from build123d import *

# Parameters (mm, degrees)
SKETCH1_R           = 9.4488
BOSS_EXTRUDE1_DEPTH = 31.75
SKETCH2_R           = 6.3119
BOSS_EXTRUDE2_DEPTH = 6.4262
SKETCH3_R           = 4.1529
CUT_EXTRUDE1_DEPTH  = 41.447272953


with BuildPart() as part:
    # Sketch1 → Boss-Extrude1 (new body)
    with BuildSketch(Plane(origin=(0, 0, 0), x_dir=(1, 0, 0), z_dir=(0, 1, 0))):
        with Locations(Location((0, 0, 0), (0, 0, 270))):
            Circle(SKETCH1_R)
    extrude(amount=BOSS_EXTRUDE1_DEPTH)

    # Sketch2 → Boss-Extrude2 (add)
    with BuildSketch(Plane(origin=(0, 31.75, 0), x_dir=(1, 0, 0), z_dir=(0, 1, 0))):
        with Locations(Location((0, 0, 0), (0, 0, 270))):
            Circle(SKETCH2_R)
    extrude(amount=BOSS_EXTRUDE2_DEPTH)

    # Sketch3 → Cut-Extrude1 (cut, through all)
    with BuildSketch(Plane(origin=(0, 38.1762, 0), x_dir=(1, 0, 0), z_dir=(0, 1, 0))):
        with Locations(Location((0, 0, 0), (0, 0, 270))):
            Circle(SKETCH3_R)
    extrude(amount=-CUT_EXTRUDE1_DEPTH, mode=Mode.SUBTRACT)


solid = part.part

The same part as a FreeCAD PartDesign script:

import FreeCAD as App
import Part
import Sketcher

V = App.Vector
Q = App.Units.Quantity

doc = App.newDocument("Part")
params = doc.addObject("Spreadsheet::Sheet", "Params")
for row, (alias, value) in enumerate([
    ("sketch1_diameter", "0.744 in"),
    ("pad1_length", "1.25 in"),
    ("sketch2_diameter", "0.497 in"),
    ("pad2_length", "0.253 in"),
    ("sketch3_diameter", "0.327 in"),
], start=1):
    params.set(f"A{row}", alias)
    params.set(f"B{row}", "=" + value)
    params.setAlias(f"B{row}", alias)

body = doc.addObject("PartDesign::Body", "Body")

# Sketch on XZ plane
sketch1 = body.newObject("Sketcher::SketchObject", "Sketch")
sketch1.AttachmentSupport = (doc.getObject("XZ_Plane"), [""])
sketch1.MapMode = "FlatFace"
sketch1.addGeometry(Part.Circle(V(0, 0, 0), V(0, 0, 1), 9), False)
sketch1.addConstraint([
    Sketcher.Constraint("Coincident", 0, 3, -1, 1),
    Sketcher.Constraint("Diameter", 0, Q("0.744 in")),
])
sketch1.setExpression("Constraints[1]", "Params.sketch1_diameter")
pad1 = body.newObject("PartDesign::Pad", "Pad")
pad1.Profile = sketch1
pad1.setExpression("Length", "Params.pad1_length")
pad1.Reversed = True

# Sketch on XZ plane
sketch2 = body.newObject("Sketcher::SketchObject", "Sketch001")
sketch2.AttachmentSupport = (doc.getObject("XZ_Plane"), [""])
sketch2.MapMode = "FlatFace"
sketch2.AttachmentOffset = App.Placement(V(0, 0, -1.25 * 25.4), App.Rotation())
sketch2.addGeometry(Part.Circle(V(0, 0, 0), V(0, 0, 1), 6), False)
sketch2.addConstraint([
    Sketcher.Constraint("Coincident", 0, 3, -1, 1),
    Sketcher.Constraint("Diameter", 0, Q("0.497 in")),
])
sketch2.setExpression("Constraints[1]", "Params.sketch2_diameter")
pad2 = body.newObject("PartDesign::Pad", "Pad001")
pad2.Profile = sketch2
pad2.setExpression("Length", "Params.pad2_length")
pad2.Reversed = True

# Sketch on XZ plane
sketch3 = body.newObject("Sketcher::SketchObject", "Sketch002")
sketch3.AttachmentSupport = (doc.getObject("XZ_Plane"), [""])
sketch3.MapMode = "FlatFace"
sketch3.AttachmentOffset = App.Placement(V(0, 0, -1.503 * 25.4), App.Rotation())
sketch3.addGeometry(Part.Circle(V(0, 0, 0), V(0, 0, 1), 4.2), False)
sketch3.addConstraint([
    Sketcher.Constraint("Coincident", 0, 3, -1, 1),
    Sketcher.Constraint("Diameter", 0, Q("0.327 in")),
])
sketch3.setExpression("Constraints[1]", "Params.sketch3_diameter")
pocket1 = body.newObject("PartDesign::Pocket", "Pocket")
pocket1.Profile = sketch3
pocket1.Type = "ThroughAll"
pocket1.Reversed = True

doc.recompute()
